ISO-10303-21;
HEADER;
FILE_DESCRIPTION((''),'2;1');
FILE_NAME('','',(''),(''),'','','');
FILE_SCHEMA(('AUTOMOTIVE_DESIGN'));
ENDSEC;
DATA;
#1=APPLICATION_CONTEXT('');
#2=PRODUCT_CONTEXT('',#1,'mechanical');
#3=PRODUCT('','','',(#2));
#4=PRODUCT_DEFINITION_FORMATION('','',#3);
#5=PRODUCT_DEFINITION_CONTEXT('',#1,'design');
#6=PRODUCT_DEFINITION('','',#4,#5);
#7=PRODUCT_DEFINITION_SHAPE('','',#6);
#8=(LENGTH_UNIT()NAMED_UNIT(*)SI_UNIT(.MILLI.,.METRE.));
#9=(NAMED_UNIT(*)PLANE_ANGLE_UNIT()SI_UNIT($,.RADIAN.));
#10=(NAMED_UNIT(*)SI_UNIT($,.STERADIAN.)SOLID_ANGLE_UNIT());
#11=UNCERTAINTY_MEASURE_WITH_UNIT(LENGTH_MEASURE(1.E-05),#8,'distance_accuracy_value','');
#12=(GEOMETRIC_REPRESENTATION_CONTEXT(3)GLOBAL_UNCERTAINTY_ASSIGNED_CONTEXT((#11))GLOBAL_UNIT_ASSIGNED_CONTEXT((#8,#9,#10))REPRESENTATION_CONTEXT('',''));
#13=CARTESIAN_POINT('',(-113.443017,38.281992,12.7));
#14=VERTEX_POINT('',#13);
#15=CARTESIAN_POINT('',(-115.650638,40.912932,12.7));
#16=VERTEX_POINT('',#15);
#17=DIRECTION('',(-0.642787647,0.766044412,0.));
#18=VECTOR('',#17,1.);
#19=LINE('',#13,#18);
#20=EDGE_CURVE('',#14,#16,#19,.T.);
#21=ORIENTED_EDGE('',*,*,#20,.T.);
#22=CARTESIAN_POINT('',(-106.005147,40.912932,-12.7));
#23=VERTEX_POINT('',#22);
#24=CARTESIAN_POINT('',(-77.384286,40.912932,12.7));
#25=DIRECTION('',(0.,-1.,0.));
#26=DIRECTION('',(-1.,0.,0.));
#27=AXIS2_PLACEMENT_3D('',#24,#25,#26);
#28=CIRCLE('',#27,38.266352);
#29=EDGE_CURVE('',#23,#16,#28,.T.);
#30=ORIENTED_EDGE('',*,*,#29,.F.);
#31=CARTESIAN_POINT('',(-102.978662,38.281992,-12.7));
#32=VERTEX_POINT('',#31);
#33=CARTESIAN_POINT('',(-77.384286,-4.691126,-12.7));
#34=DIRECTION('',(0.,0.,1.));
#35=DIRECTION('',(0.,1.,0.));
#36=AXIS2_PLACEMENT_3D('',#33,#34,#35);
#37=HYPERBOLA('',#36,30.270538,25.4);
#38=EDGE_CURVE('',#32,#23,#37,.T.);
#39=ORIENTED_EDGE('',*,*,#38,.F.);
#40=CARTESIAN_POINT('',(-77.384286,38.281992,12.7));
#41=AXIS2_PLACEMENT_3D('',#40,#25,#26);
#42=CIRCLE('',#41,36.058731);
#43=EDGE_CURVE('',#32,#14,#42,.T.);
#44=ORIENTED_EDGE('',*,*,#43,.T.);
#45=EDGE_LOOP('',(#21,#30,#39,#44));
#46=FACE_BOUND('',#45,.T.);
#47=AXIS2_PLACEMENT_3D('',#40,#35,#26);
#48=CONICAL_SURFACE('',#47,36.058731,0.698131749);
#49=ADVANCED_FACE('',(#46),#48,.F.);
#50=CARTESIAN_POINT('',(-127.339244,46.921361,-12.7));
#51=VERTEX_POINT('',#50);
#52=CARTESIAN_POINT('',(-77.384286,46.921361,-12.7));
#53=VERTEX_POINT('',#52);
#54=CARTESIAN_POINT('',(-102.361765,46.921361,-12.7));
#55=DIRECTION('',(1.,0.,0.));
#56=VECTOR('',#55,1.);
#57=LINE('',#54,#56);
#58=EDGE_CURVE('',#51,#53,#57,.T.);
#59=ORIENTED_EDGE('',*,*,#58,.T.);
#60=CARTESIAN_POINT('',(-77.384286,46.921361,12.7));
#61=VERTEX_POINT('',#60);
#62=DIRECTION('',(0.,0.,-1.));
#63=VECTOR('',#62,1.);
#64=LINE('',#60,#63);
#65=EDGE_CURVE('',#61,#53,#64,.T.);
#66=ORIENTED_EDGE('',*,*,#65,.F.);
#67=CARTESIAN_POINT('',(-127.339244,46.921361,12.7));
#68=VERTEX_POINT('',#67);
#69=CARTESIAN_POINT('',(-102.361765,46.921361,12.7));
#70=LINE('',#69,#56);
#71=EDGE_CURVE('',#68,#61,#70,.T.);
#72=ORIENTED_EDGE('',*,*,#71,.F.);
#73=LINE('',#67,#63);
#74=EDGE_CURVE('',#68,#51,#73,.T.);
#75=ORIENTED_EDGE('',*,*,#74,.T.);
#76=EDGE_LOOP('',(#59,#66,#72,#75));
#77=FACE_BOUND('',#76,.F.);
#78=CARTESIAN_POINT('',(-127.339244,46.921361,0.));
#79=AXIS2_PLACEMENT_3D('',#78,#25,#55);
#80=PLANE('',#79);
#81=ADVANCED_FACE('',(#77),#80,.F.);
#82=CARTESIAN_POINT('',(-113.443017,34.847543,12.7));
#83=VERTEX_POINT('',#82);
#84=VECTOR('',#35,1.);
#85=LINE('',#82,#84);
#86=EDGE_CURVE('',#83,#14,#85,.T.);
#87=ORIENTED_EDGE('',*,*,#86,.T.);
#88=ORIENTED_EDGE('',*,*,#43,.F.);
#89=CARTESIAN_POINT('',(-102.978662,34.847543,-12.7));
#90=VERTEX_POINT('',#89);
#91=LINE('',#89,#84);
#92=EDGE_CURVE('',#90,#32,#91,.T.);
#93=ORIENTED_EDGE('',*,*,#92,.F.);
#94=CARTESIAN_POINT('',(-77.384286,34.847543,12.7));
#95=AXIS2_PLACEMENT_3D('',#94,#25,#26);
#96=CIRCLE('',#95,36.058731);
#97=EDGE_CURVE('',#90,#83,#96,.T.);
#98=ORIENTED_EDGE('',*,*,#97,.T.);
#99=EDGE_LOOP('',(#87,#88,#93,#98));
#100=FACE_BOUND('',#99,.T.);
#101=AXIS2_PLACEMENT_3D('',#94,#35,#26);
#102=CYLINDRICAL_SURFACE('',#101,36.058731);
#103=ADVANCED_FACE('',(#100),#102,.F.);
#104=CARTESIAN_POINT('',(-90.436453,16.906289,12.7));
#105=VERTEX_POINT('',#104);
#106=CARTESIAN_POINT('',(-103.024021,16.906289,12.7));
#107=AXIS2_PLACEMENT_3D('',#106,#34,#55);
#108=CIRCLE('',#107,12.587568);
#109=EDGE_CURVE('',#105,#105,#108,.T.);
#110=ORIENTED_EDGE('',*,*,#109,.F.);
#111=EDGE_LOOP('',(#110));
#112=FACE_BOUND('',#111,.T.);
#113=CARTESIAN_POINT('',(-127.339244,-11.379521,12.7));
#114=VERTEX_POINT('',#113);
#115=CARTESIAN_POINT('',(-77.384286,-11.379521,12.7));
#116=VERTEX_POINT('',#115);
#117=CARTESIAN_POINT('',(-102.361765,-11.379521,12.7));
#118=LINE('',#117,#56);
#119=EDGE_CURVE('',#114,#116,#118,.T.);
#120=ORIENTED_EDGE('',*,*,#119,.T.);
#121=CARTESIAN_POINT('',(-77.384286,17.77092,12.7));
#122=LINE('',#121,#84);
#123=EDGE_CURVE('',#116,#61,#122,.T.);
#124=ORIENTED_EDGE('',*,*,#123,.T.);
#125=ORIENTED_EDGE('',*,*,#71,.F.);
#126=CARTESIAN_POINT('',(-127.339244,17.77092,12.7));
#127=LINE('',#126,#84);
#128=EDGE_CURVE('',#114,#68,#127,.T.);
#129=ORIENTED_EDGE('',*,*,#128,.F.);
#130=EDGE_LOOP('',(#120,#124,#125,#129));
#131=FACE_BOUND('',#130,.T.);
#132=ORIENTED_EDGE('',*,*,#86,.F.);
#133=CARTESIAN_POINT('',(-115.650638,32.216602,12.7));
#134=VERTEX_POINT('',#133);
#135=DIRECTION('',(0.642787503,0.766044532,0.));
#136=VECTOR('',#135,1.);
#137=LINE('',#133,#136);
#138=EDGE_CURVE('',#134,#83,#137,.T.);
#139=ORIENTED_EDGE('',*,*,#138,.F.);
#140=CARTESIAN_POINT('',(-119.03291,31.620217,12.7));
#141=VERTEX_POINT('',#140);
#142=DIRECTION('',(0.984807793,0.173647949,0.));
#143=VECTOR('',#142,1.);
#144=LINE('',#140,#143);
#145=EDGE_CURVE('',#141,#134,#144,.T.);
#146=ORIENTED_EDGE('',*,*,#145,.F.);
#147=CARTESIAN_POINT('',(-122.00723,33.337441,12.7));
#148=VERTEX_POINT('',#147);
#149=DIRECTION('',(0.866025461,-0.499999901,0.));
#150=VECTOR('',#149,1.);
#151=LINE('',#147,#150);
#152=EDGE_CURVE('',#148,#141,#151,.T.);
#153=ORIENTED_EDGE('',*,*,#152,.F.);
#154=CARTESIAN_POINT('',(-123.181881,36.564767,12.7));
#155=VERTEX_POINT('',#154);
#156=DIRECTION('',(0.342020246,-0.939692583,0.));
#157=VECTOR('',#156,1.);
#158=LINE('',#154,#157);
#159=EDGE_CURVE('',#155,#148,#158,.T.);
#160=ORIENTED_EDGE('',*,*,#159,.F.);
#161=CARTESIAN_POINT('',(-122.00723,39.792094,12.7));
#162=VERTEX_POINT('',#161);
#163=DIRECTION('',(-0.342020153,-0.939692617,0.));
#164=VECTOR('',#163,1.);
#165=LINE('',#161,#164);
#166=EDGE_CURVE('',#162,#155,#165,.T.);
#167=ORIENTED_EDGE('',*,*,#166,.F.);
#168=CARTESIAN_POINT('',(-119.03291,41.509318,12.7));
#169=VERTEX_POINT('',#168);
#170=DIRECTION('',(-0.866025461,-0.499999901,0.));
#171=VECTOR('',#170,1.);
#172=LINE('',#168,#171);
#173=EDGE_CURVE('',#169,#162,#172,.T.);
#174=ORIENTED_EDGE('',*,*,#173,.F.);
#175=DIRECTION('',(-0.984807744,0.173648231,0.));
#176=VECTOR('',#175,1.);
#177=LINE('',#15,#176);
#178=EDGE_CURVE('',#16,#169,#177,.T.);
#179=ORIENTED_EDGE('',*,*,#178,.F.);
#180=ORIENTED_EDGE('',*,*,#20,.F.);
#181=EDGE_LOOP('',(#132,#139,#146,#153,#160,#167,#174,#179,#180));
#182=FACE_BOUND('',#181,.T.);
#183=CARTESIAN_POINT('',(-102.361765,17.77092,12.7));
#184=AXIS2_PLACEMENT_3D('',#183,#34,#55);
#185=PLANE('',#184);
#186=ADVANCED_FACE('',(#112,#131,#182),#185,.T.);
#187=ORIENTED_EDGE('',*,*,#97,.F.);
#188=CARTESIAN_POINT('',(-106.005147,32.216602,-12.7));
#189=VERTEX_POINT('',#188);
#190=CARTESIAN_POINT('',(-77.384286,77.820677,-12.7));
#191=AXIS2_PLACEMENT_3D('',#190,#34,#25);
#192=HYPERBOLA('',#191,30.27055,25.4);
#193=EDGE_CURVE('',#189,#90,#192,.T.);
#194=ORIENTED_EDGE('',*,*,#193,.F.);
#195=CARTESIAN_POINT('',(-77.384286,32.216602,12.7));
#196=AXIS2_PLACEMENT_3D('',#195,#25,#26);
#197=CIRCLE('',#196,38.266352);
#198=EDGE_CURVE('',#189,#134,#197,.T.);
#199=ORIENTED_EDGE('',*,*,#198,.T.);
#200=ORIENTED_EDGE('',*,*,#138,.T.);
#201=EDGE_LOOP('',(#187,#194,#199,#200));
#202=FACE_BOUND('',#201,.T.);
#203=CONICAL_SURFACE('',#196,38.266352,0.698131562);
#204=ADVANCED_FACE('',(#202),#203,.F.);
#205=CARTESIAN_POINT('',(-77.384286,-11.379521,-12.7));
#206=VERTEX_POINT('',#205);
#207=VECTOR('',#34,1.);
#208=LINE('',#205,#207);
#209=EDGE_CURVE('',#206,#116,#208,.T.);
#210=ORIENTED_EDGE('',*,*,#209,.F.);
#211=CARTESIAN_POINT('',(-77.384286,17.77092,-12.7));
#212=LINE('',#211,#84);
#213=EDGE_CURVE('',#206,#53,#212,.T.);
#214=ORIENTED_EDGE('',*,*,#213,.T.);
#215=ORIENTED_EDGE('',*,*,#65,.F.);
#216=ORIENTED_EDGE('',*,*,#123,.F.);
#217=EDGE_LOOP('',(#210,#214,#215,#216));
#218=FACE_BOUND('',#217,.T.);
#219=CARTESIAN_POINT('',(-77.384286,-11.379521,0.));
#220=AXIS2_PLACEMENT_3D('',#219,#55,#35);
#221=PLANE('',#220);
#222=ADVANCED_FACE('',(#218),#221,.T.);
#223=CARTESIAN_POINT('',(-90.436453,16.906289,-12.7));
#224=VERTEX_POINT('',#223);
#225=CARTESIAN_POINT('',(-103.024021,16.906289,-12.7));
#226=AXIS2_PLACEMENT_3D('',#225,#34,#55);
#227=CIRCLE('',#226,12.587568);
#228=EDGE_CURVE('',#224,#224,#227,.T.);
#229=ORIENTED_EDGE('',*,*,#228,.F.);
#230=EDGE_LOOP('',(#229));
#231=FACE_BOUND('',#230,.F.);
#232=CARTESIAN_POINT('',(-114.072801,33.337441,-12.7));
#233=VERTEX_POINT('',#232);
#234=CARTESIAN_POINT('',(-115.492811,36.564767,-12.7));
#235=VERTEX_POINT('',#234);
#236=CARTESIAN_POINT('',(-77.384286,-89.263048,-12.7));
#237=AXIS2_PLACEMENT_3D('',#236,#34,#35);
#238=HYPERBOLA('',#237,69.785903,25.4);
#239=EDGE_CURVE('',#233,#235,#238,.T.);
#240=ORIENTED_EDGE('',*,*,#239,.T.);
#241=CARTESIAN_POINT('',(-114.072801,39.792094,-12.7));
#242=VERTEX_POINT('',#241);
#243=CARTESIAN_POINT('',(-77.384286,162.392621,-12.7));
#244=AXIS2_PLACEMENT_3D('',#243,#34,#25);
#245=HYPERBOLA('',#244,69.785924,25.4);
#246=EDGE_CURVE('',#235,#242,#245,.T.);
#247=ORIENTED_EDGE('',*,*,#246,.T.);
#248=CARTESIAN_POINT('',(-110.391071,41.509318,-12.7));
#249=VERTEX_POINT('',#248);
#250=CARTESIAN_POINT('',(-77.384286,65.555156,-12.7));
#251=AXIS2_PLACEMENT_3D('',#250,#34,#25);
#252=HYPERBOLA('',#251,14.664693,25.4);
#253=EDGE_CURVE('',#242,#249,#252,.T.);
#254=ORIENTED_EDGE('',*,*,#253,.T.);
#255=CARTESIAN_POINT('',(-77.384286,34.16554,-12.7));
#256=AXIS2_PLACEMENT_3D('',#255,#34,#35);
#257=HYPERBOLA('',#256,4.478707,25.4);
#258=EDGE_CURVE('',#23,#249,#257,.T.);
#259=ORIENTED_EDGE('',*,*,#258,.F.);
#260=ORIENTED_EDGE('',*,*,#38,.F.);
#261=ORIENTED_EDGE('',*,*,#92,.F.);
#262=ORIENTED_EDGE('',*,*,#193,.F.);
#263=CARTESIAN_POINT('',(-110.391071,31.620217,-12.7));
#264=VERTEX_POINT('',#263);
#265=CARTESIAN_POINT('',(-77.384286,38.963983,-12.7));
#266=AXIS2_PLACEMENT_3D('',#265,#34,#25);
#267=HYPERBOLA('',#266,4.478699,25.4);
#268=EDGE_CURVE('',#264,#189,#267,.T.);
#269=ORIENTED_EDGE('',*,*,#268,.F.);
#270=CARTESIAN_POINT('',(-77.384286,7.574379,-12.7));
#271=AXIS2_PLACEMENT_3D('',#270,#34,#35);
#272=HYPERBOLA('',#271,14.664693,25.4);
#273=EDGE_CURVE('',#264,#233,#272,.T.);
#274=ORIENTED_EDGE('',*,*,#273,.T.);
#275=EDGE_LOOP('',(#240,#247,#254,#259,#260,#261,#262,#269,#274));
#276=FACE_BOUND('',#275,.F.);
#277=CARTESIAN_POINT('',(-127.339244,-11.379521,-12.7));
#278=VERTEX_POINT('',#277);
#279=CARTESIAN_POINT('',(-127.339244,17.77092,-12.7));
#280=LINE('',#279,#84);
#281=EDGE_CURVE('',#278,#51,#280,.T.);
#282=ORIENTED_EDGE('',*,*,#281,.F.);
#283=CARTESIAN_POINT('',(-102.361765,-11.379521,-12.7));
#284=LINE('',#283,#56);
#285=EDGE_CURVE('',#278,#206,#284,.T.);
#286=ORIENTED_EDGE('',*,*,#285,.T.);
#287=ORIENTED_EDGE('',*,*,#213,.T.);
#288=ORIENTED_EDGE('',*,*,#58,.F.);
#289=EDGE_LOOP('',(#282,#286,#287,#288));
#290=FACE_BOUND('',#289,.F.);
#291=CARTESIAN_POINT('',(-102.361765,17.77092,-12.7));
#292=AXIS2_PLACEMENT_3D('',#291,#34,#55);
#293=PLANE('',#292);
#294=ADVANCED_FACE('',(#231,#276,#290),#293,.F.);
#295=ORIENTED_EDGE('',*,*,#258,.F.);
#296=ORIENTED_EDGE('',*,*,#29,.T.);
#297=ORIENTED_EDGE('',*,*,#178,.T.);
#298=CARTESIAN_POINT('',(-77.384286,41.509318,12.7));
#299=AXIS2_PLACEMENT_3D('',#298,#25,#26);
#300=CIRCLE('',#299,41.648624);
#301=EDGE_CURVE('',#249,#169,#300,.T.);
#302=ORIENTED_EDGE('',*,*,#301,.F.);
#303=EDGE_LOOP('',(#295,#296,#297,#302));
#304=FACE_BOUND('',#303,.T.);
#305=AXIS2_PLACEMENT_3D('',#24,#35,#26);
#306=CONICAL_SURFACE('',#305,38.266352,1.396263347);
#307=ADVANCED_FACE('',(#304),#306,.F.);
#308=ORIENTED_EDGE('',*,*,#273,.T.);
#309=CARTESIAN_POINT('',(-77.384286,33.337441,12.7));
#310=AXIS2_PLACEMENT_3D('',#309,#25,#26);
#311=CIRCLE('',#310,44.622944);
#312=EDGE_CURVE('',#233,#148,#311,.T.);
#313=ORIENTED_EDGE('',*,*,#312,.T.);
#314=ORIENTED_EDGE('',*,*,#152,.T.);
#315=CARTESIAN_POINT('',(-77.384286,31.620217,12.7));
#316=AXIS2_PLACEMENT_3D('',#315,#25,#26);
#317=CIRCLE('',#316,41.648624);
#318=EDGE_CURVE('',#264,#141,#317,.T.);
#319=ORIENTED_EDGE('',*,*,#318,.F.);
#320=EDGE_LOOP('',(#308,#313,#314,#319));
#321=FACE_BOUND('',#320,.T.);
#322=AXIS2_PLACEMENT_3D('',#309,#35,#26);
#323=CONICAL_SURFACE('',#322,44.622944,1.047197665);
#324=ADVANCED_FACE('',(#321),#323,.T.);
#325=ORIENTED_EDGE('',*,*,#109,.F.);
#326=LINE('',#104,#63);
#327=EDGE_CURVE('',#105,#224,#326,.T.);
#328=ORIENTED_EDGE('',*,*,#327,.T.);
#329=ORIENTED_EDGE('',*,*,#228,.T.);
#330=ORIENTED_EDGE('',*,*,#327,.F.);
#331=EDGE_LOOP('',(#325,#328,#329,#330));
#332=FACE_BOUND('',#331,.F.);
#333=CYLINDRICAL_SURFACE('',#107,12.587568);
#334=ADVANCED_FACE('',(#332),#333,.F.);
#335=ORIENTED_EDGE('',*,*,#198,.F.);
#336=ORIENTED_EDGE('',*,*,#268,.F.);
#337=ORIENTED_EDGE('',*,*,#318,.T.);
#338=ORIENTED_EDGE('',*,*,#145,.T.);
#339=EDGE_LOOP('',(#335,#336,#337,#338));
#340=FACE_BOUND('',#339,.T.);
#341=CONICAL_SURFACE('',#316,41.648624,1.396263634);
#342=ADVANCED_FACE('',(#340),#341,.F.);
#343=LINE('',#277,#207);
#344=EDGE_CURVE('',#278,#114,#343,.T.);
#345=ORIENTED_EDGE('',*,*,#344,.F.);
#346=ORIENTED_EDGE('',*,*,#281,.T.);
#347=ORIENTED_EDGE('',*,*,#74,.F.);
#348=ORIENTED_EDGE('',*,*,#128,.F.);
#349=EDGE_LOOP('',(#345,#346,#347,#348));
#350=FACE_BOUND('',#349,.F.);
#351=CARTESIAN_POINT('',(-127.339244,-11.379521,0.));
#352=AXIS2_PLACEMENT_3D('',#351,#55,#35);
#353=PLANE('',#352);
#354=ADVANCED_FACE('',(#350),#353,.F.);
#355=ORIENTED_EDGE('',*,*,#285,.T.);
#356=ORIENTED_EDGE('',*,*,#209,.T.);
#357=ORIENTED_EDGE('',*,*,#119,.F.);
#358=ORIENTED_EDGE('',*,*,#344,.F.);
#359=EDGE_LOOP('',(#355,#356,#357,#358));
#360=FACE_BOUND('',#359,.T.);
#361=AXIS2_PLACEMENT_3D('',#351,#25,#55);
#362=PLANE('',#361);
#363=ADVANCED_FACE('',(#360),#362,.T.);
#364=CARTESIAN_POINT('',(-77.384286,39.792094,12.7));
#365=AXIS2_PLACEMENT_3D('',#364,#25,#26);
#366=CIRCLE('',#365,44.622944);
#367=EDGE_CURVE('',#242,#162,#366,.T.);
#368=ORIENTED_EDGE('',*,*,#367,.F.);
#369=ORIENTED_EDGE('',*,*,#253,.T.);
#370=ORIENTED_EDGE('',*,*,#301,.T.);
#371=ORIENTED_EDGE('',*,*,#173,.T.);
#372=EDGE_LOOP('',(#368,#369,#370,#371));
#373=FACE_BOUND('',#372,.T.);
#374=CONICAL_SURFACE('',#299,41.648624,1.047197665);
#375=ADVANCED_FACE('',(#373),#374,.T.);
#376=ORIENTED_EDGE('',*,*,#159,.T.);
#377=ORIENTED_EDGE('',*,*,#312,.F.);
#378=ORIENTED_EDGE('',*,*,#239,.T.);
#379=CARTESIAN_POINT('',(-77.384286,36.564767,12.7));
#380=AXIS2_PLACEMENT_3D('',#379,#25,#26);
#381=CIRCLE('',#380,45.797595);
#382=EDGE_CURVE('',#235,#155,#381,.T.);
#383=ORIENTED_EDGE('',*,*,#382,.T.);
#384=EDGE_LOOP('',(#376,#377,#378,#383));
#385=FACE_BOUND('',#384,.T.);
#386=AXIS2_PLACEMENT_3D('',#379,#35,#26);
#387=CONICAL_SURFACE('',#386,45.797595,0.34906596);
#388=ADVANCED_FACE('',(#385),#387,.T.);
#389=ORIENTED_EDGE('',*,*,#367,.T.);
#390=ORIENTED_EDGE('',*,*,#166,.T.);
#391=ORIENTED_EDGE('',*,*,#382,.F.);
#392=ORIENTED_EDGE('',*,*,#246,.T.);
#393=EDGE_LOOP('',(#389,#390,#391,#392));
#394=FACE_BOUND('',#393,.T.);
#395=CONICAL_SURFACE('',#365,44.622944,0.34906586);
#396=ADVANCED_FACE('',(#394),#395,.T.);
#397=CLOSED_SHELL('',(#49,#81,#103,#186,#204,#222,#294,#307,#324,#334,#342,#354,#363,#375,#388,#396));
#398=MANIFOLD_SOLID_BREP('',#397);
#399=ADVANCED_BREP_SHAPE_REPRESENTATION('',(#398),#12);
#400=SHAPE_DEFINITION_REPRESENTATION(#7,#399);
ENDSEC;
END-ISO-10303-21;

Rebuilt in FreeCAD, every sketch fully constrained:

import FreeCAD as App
import Part
import Sketcher
from FreeCAD import Vector
Q = App.Units.Quantity

doc = App.newDocument("Part")
body = doc.addObject("PartDesign::Body", "Body")

sketch1 = doc.addObject("Sketcher::SketchObject", "Sketch")
body.addObject(sketch1)
sketch1.AttachmentSupport = (doc.XY_Plane, [""])
sketch1.MapMode = "FlatFace"
sketch1.addGeometry(Part.LineSegment(Vector(-127.339244, 46.921361, 0), Vector(-127.339244, -11.379521, 0)), False)
sketch1.addGeometry(Part.LineSegment(Vector(-127.339244, -11.379521, 0), Vector(-77.384286, -11.379521, 0)), False)
sketch1.addGeometry(Part.LineSegment(Vector(-77.384286, -11.379521, 0), Vector(-77.384286, 46.921361, 0)), False)
sketch1.addGeometry(Part.LineSegment(Vector(-77.384286, 46.921361, 0), Vector(-127.339244, 46.921361, 0)), False)
sketch1.addConstraint(Sketcher.Constraint("Coincident", 0, 2, 1, 1))
sketch1.addConstraint(Sketcher.Constraint("Coincident", 1, 2, 2, 1))
sketch1.addConstraint(Sketcher.Constraint("Coincident", 2, 2, 3, 1))
sketch1.addConstraint(Sketcher.Constraint("Coincident", 3, 2, 0, 1))
sketch1.addConstraint(Sketcher.Constraint("Vertical", 0))
sketch1.addConstraint(Sketcher.Constraint("Horizontal", 1))
sketch1.addConstraint(Sketcher.Constraint("Vertical", 2))
sketch1.addConstraint(Sketcher.Constraint("Horizontal", 3))
sketch1.addConstraint(Sketcher.Constraint("DistanceX", 1, 1, 1, 2, 49.954958))
sketch1.addConstraint(Sketcher.Constraint("DistanceY", 0, 2, 0, 1, 58.300882))
sketch1.addConstraint(Sketcher.Constraint("DistanceY", 0, 2, -1, 1, 11.379521))
sketch1.addConstraint(Sketcher.Constraint("DistanceX", 0, 2, -1, 1, 127.339244))
pad1 = doc.addObject("PartDesign::Pad", "Pad")
body.addObject(pad1)
pad1.Profile = sketch1
pad1.Length = Q("1 in")
pad1.Midplane = True

sketch2 = doc.addObject("Sketcher::SketchObject", "Sketch001")
body.addObject(sketch2)
sketch2.AttachmentSupport = (doc.XY_Plane, [""])
sketch2.MapMode = "FlatFace"
sketch2.AttachmentOffset = App.Placement(Vector(0, 0, 0.5 * 25.4), App.Rotation())
sketch2.addGeometry(Part.Circle(Vector(-103.024021, 16.906289, 0), Vector(0, 0, 1), 12.587568), False)
sketch2.addConstraint(Sketcher.Constraint("Diameter", 0, 25.175136))
sketch2.addConstraint(Sketcher.Constraint("DistanceX", 0, 3, -1, 1, 103.024021))
sketch2.addConstraint(Sketcher.Constraint("DistanceY", -1, 1, 0, 3, 16.906289))
pocket1 = doc.addObject("PartDesign::Pocket", "Pocket")
body.addObject(pocket1)
pocket1.Profile = sketch2
pocket1.Type = "ThroughAll"

sketch3 = doc.addObject("Sketcher::SketchObject", "Sketch002")
body.addObject(sketch3)
sketch3.AttachmentSupport = (doc.XY_Plane, [""])
sketch3.MapMode = "FlatFace"
sketch3.AttachmentOffset = App.Placement(Vector(0, 0, 0.5 * 25.4), App.Rotation())
sketch3.addGeometry(Part.LineSegment(Vector(-113.443017, 34.847543, 0), Vector(-113.443017, 38.281992, 0)), False)
sketch3.addGeometry(Part.LineSegment(Vector(-113.443017, 38.281992, 0), Vector(-115.650638, 40.912932, 0)), False)
sketch3.addGeometry(Part.LineSegment(Vector(-115.650638, 40.912932, 0), Vector(-119.03291, 41.509318, 0)), False)
sketch3.addGeometry(Part.LineSegment(Vector(-119.03291, 41.509318, 0), Vector(-122.00723, 39.792094, 0)), False)
sketch3.addGeometry(Part.LineSegment(Vector(-122.00723, 39.792094, 0), Vector(-123.181881, 36.564767, 0)), False)
sketch3.addGeometry(Part.LineSegment(Vector(-123.181881, 36.564767, 0), Vector(-122.00723, 33.337441, 0)), False)
sketch3.addGeometry(Part.LineSegment(Vector(-122.00723, 33.337441, 0), Vector(-119.03291, 31.620217, 0)), False)
sketch3.addGeometry(Part.LineSegment(Vector(-119.03291, 31.620217, 0), Vector(-115.650638, 32.216602, 0)), False)
sketch3.addGeometry(Part.LineSegment(Vector(-115.650638, 32.216602, 0), Vector(-113.443017, 34.847543, 0)), False)
sketch3.addGeometry(Part.LineSegment(Vector(-77.384286, 41.509318, 0), Vector(-77.384286, 31.620217, 0)), True)
sketch3.addConstraint(Sketcher.Constraint("Coincident", 0, 2, 1, 1))
sketch3.addConstraint(Sketcher.Constraint("Coincident", 1, 2, 2, 1))
sketch3.addConstraint(Sketcher.Constraint("Coincident", 2, 2, 3, 1))
sketch3.addConstraint(Sketcher.Constraint("Coincident", 3, 2, 4, 1))
sketch3.addConstraint(Sketcher.Constraint("Coincident", 4, 2, 5, 1))
sketch3.addConstraint(Sketcher.Constraint("Coincident", 5, 2, 6, 1))
sketch3.addConstraint(Sketcher.Constraint("Coincident", 6, 2, 7, 1))
sketch3.addConstraint(Sketcher.Constraint("Coincident", 7, 2, 8, 1))
sketch3.addConstraint(Sketcher.Constraint("Coincident", 8, 2, 0, 1))
sketch3.addConstraint(Sketcher.Constraint("Vertical", 0))
sketch3.addConstraint(Sketcher.Constraint("Vertical", 9))
sketch3.addConstraint(Sketcher.Constraint("Horizontal", 2, 2, 9, 1))
sketch3.addConstraint(Sketcher.Constraint("Horizontal", 6, 2, 9, 2))
sketch3.addConstraint(Sketcher.Constraint("Vertical", 3, 2, 5, 2))
sketch3.addConstraint(Sketcher.Constraint("Vertical", 2, 2, 6, 2))
sketch3.addConstraint(Sketcher.Constraint("Vertical", 1, 2, 7, 2))
sketch3.addConstraint(Sketcher.Constraint("Equal", 1, 2))
sketch3.addConstraint(Sketcher.Constraint("Equal", 2, 3))
sketch3.addConstraint(Sketcher.Constraint("Equal", 3, 4))
sketch3.addConstraint(Sketcher.Constraint("Equal", 4, 5))
sketch3.addConstraint(Sketcher.Constraint("Equal", 5, 6))
sketch3.addConstraint(Sketcher.Constraint("Equal", 6, 7))
sketch3.addConstraint(Sketcher.Constraint("Equal", 7, 8))
sketch3.addConstraint(Sketcher.Constraint("Angle", 1, Q("130.000003 deg")))
sketch3.addConstraint(Sketcher.Constraint("Angle", 2, Q("169.999997 deg")))
sketch3.addConstraint(Sketcher.Constraint("Angle", 3, Q("-150.000007 deg")))
sketch3.addConstraint(Sketcher.Constraint("Angle", 4, Q("-110.000001 deg")))
sketch3.addConstraint(Sketcher.Constraint("DistanceY", 9, 2, 9, 1, 9.889101))
sketch3.addConstraint(Sketcher.Constraint("DistanceX", 1, 2, -1, 1, 115.650638))
sketch3.addConstraint(Sketcher.Constraint("DistanceY", -1, 1, 1, 2, 40.912932))
sketch3.addConstraint(Sketcher.Constraint("DistanceX", 0, 2, 9, 1, 36.058731))
revolution = doc.addObject("PartDesign::Revolution", "Revolution")
body.addObject(revolution)
revolution.Profile = sketch3
revolution.ReferenceAxis = (sketch3, ["Axis0"])
revolution.Angle = 360

doc.recompute()
